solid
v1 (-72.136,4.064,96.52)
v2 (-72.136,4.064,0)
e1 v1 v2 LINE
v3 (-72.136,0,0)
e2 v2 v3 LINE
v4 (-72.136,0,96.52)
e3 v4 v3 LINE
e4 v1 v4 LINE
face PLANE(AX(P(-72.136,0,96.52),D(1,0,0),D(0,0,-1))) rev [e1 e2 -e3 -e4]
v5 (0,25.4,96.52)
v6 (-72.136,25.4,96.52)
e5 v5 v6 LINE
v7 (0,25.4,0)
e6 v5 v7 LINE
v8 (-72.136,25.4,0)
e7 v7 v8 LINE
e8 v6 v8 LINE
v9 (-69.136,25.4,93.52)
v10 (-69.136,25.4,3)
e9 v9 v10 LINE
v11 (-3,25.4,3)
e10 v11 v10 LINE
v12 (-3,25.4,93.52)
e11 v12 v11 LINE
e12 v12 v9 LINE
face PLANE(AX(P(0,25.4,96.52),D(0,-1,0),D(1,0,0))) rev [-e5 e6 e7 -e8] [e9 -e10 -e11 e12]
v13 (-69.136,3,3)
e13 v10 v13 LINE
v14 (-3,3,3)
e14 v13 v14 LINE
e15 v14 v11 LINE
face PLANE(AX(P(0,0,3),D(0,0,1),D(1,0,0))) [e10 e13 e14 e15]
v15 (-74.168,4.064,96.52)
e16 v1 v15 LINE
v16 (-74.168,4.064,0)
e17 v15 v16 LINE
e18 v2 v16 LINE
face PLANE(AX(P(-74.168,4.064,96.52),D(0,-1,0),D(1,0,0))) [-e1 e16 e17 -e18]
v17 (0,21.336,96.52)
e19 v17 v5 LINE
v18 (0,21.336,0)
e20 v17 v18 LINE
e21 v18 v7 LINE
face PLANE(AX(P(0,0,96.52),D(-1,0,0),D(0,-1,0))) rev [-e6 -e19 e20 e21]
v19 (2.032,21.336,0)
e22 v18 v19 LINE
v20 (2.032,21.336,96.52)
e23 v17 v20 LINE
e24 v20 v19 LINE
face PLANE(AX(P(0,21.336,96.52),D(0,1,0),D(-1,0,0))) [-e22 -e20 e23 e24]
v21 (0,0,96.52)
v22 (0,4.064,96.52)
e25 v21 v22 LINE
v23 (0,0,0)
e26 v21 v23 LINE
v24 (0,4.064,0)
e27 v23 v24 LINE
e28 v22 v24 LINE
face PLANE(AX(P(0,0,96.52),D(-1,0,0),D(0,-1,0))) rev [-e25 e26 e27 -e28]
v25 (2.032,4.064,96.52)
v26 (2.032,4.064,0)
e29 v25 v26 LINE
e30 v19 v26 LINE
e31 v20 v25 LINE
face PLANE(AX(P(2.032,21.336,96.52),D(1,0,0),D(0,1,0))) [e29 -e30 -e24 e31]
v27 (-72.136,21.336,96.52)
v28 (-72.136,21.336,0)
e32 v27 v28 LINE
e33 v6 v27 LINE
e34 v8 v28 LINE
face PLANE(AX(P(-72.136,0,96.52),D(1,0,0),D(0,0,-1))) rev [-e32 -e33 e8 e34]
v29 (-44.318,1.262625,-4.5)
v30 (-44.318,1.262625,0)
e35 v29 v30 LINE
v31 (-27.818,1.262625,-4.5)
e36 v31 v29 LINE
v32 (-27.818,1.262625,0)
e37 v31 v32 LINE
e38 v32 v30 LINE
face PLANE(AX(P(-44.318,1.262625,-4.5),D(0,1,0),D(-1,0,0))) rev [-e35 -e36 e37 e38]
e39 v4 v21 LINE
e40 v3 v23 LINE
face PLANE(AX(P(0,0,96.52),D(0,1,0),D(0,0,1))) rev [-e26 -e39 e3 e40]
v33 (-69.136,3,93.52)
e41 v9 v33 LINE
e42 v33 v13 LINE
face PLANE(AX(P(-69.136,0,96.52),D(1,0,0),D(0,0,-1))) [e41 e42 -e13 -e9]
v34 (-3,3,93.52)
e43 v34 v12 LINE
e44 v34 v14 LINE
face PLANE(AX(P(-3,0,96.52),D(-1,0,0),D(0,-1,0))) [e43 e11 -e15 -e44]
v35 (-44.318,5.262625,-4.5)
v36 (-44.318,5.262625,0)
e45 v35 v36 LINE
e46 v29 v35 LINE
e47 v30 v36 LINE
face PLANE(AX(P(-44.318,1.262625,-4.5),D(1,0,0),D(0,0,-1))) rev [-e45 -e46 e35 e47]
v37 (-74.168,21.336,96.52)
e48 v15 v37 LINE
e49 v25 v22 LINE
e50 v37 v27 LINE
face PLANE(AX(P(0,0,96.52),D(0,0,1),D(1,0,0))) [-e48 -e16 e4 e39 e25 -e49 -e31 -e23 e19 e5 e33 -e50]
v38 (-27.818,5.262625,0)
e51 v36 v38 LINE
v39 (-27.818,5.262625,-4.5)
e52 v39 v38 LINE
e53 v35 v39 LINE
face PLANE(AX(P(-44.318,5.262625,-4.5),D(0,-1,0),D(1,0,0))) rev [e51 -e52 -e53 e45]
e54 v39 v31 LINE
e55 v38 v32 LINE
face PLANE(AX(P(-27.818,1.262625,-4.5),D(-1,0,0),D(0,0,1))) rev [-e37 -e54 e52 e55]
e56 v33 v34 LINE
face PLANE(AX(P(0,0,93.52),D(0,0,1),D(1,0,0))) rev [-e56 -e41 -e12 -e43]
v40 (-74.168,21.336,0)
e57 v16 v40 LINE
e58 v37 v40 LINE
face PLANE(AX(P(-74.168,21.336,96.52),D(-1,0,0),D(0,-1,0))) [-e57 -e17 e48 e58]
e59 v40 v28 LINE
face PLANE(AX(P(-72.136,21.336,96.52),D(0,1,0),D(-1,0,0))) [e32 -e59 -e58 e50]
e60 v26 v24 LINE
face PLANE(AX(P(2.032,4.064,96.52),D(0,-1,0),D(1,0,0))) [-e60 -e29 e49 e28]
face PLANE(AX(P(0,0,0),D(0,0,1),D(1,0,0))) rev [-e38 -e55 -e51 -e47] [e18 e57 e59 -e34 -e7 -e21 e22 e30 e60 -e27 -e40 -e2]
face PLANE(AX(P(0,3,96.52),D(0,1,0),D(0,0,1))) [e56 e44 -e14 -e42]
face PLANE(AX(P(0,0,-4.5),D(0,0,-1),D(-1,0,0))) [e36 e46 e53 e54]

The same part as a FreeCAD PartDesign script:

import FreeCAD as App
import Part
import Sketcher
from FreeCAD import Vector
Q = App.Units.Quantity


def faces_at(feature, points):
    """Names of the faces that lie closest to the given points."""
    faces = feature.Shape.Faces
    near = lambda p: min(range(len(faces)), key=lambda i: faces[i].distToShape(Part.Vertex(*p))[0])
    return sorted({f"Face{near(p) + 1}" for p in points})

doc = App.newDocument("Part")
body = doc.addObject("PartDesign::Body", "Body")

# Sketch on XY plane
sketch1 = body.newObject("Sketcher::SketchObject", "Sketch")
sketch1.AttachmentSupport = (doc.getObject("XY_Plane"), [""])
sketch1.MapMode = "FlatFace"
sketch1.addGeometry([
    Part.LineSegment(Vector(-72, 25, 0), Vector(-72, 0, 0)),
    Part.LineSegment(Vector(-72, 0, 0), Vector(0, 0, 0)),
    Part.LineSegment(Vector(0, 0, 0), Vector(0, 25, 0)),
    Part.LineSegment(Vector(0, 25, 0), Vector(-72, 25, 0)),
], False)
sketch1.addConstraint([
    Sketcher.Constraint("Coincident", 0, 2, 1, 1),
    Sketcher.Constraint("Coincident", 1, 2, 2, 1),
    Sketcher.Constraint("Coincident", 2, 2, 3, 1),
    Sketcher.Constraint("Coincident", 3, 2, 0, 1),
    Sketcher.Constraint("Vertical", 0),
    Sketcher.Constraint("Horizontal", 1),
    Sketcher.Constraint("Vertical", 2),
    Sketcher.Constraint("Horizontal", 3),
    Sketcher.Constraint("Coincident", 1, 2, -1, 1),
    Sketcher.Constraint("DistanceY", 0, 2, 0, 1, Q("1 in")),
    Sketcher.Constraint("DistanceX", 1, 1, 1, 2, Q("2.84 in")),
])
pad1 = body.newObject("PartDesign::Pad", "Pad")
pad1.Profile = sketch1
pad1.Length = Q("3.8 in")
doc.recompute()

thickness = body.newObject("PartDesign::Thickness", "Thickness")
thickness.Base = (pad1, faces_at(pad1, [(-36.068, 25.4, 48.26)]))
thickness.Value = 3
thickness.Reversed = True
thickness.Join = "Intersection"

# Sketch on XY plane
sketch2 = body.newObject("Sketcher::SketchObject", "Sketch001")
sketch2.AttachmentSupport = (doc.getObject("XY_Plane"), [""])
sketch2.MapMode = "FlatFace"
sketch2.addGeometry([
    Part.LineSegment(Vector(2, 21.3, 0), Vector(2, 4.1, 0)),  # 0
    Part.LineSegment(Vector(2, 4.1, 0), Vector(0, 4.1, 0)),  # 1
    Part.LineSegment(Vector(0, 4.1, 0), Vector(0, 21.3, 0)),  # 2
    Part.LineSegment(Vector(0, 21.3, 0), Vector(2, 21.3, 0)),  # 3
    Part.LineSegment(Vector(-72.1, 21.3, 0), Vector(-72.1, 4.1, 0)),  # 4
    Part.LineSegment(Vector(-72.1, 4.1, 0), Vector(-74.2, 4.1, 0)),  # 5
    Part.LineSegment(Vector(-74.2, 4.1, 0), Vector(-74.2, 21.3, 0)),  # 6
    Part.LineSegment(Vector(-74.2, 21.3, 0), Vector(-72.1, 21.3, 0)),  # 7
], False)
sketch2.addConstraint([
    Sketcher.Constraint("Coincident", 0, 2, 1, 1),
    Sketcher.Constraint("Coincident", 1, 2, 2, 1),
    Sketcher.Constraint("Coincident", 2, 2, 3, 1),
    Sketcher.Constraint("Coincident", 3, 2, 0, 1),
    Sketcher.Constraint("Coincident", 4, 2, 5, 1),
    Sketcher.Constraint("Coincident", 5, 2, 6, 1),
    Sketcher.Constraint("Coincident", 6, 2, 7, 1),
    Sketcher.Constraint("Coincident", 7, 2, 4, 1),
    Sketcher.Constraint("Vertical", 0),
    Sketcher.Constraint("Horizontal", 1),
    Sketcher.Constraint("Vertical", 2),
    Sketcher.Constraint("Horizontal", 3),
    Sketcher.Constraint("Vertical", 4),
    Sketcher.Constraint("Horizontal", 5),
    Sketcher.Constraint("Vertical", 6),
    Sketcher.Constraint("Horizontal", 7),
    Sketcher.Constraint("PointOnObject", 1, 2, -2),
    Sketcher.Constraint("Horizontal", 1, 2, 4, 2),
    Sketcher.Constraint("Horizontal", 3, 2, 6, 2),
    Sketcher.Constraint("Equal", 3, 5),
    Sketcher.Constraint("DistanceX", 5, 2, 0, 2, Q("3 in")),
    Sketcher.Constraint("DistanceX", 1, 2, 1, 1, Q("0.08 in")),
    Sketcher.Constraint("DistanceY", 0, 2, 0, 1, Q("0.68 in")),
    Sketcher.Constraint("DistanceY", -1, 1, 0, 2, Q("0.16 in")),
])
pad2 = body.newObject("PartDesign::Pad", "Pad001")
pad2.Profile = sketch2
pad2.Length = Q("3.8 in")

# Sketch on XY plane
sketch3 = body.newObject("Sketcher::SketchObject", "Sketch002")
sketch3.AttachmentSupport = (doc.getObject("XY_Plane"), [""])
sketch3.MapMode = "FlatFace"
sketch3.addGeometry([
    Part.LineSegment(Vector(-27.8, 5.3, 0), Vector(-27.8, 1.3, 0)),
    Part.LineSegment(Vector(-27.8, 1.3, 0), Vector(-44.3, 1.3, 0)),
    Part.LineSegment(Vector(-44.3, 1.3, 0), Vector(-44.3, 5.3, 0)),
    Part.LineSegment(Vector(-44.3, 5.3, 0), Vector(-27.8, 5.3, 0)),
], False)
sketch3.addConstraint([
    Sketcher.Constraint("Coincident", 0, 2, 1, 1),
    Sketcher.Constraint("Coincident", 1, 2, 2, 1),
    Sketcher.Constraint("Coincident", 2, 2, 3, 1),
    Sketcher.Constraint("Coincident", 3, 2, 0, 1),
    Sketcher.Constraint("Vertical", 0),
    Sketcher.Constraint("Horizontal", 1),
    Sketcher.Constraint("Vertical", 2),
    Sketcher.Constraint("Horizontal", 3),
    Sketcher.Constraint("DistanceX", 1, 2, 1, 1, 16.5),
    Sketcher.Constraint("DistanceY", 0, 2, 0, 1, 4.0),
    Sketcher.Constraint("DistanceX", 0, 2, -1, 1, 27.818),
    Sketcher.Constraint("DistanceY", -1, 1, 0, 2, 1.262625),
])
pad3 = body.newObject("PartDesign::Pad", "Pad002")
pad3.Profile = sketch3
pad3.Length = 4.5
pad3.Reversed = True

doc.recompute()
